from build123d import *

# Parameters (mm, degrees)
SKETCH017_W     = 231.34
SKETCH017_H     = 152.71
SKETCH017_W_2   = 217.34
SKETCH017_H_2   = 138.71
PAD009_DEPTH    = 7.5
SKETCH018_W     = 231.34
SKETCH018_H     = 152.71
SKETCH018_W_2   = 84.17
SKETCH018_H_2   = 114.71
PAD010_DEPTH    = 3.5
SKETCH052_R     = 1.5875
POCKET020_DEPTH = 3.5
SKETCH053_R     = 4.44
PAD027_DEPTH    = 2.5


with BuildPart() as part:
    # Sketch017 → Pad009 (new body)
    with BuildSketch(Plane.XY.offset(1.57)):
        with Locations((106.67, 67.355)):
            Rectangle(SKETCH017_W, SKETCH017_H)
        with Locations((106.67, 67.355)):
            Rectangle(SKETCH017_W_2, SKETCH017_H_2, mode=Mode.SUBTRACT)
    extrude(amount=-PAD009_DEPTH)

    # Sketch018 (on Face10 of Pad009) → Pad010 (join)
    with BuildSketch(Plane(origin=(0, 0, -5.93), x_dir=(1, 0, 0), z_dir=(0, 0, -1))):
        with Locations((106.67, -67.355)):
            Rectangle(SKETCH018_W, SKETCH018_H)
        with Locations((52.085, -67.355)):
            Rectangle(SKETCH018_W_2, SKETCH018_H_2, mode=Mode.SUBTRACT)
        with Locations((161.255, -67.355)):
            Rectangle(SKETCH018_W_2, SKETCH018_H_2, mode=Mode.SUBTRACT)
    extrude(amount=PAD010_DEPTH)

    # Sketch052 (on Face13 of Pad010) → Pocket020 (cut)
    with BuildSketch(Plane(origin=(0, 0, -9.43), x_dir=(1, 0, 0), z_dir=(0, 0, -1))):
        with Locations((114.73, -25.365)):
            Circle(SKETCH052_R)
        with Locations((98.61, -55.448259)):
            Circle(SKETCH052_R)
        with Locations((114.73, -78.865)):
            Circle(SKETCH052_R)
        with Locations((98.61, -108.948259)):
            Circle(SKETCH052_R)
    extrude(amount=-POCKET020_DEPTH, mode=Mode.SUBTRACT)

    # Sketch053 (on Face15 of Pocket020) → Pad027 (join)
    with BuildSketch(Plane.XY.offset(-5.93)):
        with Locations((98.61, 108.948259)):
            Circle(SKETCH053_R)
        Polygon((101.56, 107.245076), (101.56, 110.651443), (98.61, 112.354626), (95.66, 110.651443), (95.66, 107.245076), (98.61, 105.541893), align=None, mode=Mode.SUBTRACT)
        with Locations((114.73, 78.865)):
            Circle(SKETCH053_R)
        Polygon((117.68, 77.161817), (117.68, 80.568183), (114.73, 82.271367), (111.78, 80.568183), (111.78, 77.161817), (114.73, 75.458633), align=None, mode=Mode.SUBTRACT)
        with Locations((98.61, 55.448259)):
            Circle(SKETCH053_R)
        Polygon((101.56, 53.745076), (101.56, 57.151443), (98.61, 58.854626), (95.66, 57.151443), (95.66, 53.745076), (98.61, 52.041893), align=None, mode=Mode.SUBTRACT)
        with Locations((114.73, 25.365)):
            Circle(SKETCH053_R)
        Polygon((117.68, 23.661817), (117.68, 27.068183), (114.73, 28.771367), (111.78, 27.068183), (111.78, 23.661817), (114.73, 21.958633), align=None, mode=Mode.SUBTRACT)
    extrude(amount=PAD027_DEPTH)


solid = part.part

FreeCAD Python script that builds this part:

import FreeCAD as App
import Part
import Sketcher

V = App.Vector
Q = App.Units.Quantity

doc = App.newDocument("Part")
params = doc.addObject("Spreadsheet::Sheet", "Params")
for row, (alias, value) in enumerate([
    ("sketch1_width", "231.34 mm"),
    ("sketch1_height", "152.71 mm"),
    ("pad1_length", "7.5 mm"),
    ("sketch2_width", "231.34 mm"),
    ("sketch2_height", "152.71 mm"),
    ("pad2_length", "3.5 mm"),
    ("pocket1_length", "3.5 mm"),
    ("sketch4_diameter", "8.88 mm"),
    ("pad3_length", "2.5 mm"),
], start=1):
    params.set(f"A{row}", alias)
    params.set(f"B{row}", "=" + value)
    params.setAlias(f"B{row}", alias)

body = doc.addObject("PartDesign::Body", "Body")

# Sketch on XY plane
sketch1 = body.newObject("Sketcher::SketchObject", "Sketch")
sketch1.AttachmentSupport = (doc.getObject("XY_Plane"), [""])
sketch1.MapMode = "FlatFace"
sketch1.AttachmentOffset = App.Placement(V(0, 0, 1.57), App.Rotation())
sketch1.addGeometry([
    Part.LineSegment(V(-9, 144, 0), V(-9, -9, 0)),  # 0
    Part.LineSegment(V(-9, -9, 0), V(222, -9, 0)),  # 1
    Part.LineSegment(V(222, -9, 0), V(222, 144, 0)),  # 2
    Part.LineSegment(V(222, 144, 0), V(-9, 144, 0)),  # 3
    Part.LineSegment(V(215, -2, 0), V(-2, -2, 0)),  # 4
    Part.LineSegment(V(-2, -2, 0), V(-2, 137, 0)),  # 5
    Part.LineSegment(V(-2, 137, 0), V(215, 137, 0)),  # 6
    Part.LineSegment(V(215, 137, 0), V(215, -2, 0)),  # 7
], False)
sketch1.addConstraint([
    Sketcher.Constraint("Coincident", 0, 2, 1, 1),
    Sketcher.Constraint("Coincident", 1, 2, 2, 1),
    Sketcher.Constraint("Coincident", 2, 2, 3, 1),
    Sketcher.Constraint("Coincident", 3, 2, 0, 1),
    Sketcher.Constraint("Coincident", 4, 2, 5, 1),
    Sketcher.Constraint("Coincident", 5, 2, 6, 1),
    Sketcher.Constraint("Coincident", 6, 2, 7, 1),
    Sketcher.Constraint("Coincident", 7, 2, 4, 1),
    Sketcher.Constraint("Vertical", 0),
    Sketcher.Constraint("Horizontal", 1),
    Sketcher.Constraint("Vertical", 2),
    Sketcher.Constraint("Horizontal", 3),
    Sketcher.Constraint("Horizontal", 4),
    Sketcher.Constraint("Vertical", 5),
    Sketcher.Constraint("Horizontal", 6),
    Sketcher.Constraint("Vertical", 7),
    Sketcher.Constraint("DistanceX", 0, 2, -1, 1, 9.0),
    Sketcher.Constraint("DistanceY", 0, 2, -1, 1, 9.0),
    Sketcher.Constraint("DistanceX", 4, 2, -1, 1, 2.0),
    Sketcher.Constraint("DistanceY", 4, 2, -1, 1, 2.0),
    Sketcher.Constraint("DistanceY", 5, 2, 3, 2, 7.0),
    Sketcher.Constraint("DistanceX", 6, 2, 2, 2, 7.0),
    Sketcher.Constraint("DistanceX", 1, 1, 1, 2, 231.34),
    Sketcher.Constraint("DistanceY", 0, 2, 0, 1, 152.71),
])
sketch1.setExpression("Constraints[22]", "Params.sketch1_width")
sketch1.setExpression("Constraints[23]", "Params.sketch1_height")
pad1 = body.newObject("PartDesign::Pad", "Pad")
pad1.Profile = sketch1
pad1.setExpression("Length", "Params.pad1_length")
pad1.Reversed = True

# Sketch on XY plane
sketch2 = body.newObject("Sketcher::SketchObject", "Sketch001")
sketch2.AttachmentSupport = (doc.getObject("XY_Plane"), [""])
sketch2.MapMode = "FlatFace"
sketch2.AttachmentOffset = App.Placement(V(0, 0, -5.93), App.Rotation())
sketch2.addGeometry([
    Part.LineSegment(V(-9, -9, 0), V(-9, 144, 0)),  # 0
    Part.LineSegment(V(-9, 144, 0), V(222, 144, 0)),  # 1
    Part.LineSegment(V(222, 144, 0), V(222, -9, 0)),  # 2
    Part.LineSegment(V(222, -9, 0), V(-9, -9, 0)),  # 3
    Part.LineSegment(V(94, 125, 0), V(10, 125, 0)),  # 4
    Part.LineSegment(V(10, 125, 0), V(10, 10, 0)),  # 5
    Part.LineSegment(V(10, 10, 0), V(94, 10, 0)),  # 6
    Part.LineSegment(V(94, 10, 0), V(94, 125, 0)),  # 7
    Part.LineSegment(V(203, 125, 0), V(119, 125, 0)),  # 8
    Part.LineSegment(V(119, 125, 0), V(119, 10, 0)),  # 9
    Part.LineSegment(V(119, 10, 0), V(203, 10, 0)),  # 10
    Part.LineSegment(V(203, 10, 0), V(203, 125, 0)),  # 11
], False)
sketch2.addConstraint([
    Sketcher.Constraint("Coincident", 0, 2, 1, 1),
    Sketcher.Constraint("Coincident", 1, 2, 2, 1),
    Sketcher.Constraint("Coincident", 2, 2, 3, 1),
    Sketcher.Constraint("Coincident", 3, 2, 0, 1),
    Sketcher.Constraint("Coincident", 4, 2, 5, 1),
    Sketcher.Constraint("Coincident", 5, 2, 6, 1),
    Sketcher.Constraint("Coincident", 6, 2, 7, 1),
    Sketcher.Constraint("Coincident", 7, 2, 4, 1),
    Sketcher.Constraint("Coincident", 8, 2, 9, 1),
    Sketcher.Constraint("Coincident", 9, 2, 10, 1),
    Sketcher.Constraint("Coincident", 10, 2, 11, 1),
    Sketcher.Constraint("Coincident", 11, 2, 8, 1),
    Sketcher.Constraint("Vertical", 0),
    Sketcher.Constraint("Horizontal", 1),
    Sketcher.Constraint("Vertical", 2),
    Sketcher.Constraint("Horizontal", 3),
    Sketcher.Constraint("Horizontal", 4),
    Sketcher.Constraint("Vertical", 5),
    Sketcher.Constraint("Horizontal", 6),
    Sketcher.Constraint("Vertical", 7),
    Sketcher.Constraint("Horizontal", 8),
    Sketcher.Constraint("Vertical", 9),
    Sketcher.Constraint("Horizontal", 10),
    Sketcher.Constraint("Vertical", 11),
    Sketcher.Constraint("Horizontal", 7, 2, 8, 2),
    Sketcher.Constraint("Horizontal", 6, 2, 9, 2),
    Sketcher.Constraint("Equal", 6, 8),
    Sketcher.Constraint("DistanceX", 0, 2, -1, 1, 9.0),
    Sketcher.Constraint("DistanceY", 2, 2, -1, 1, 9.0),
    Sketcher.Constraint("DistanceX", -1, 1, 4, 2, 10.0),
    Sketcher.Constraint("DistanceY", -1, 1, 5, 2, 10.0),
    Sketcher.Constraint("DistanceY", 4, 2, 0, 2, 19.0),
    Sketcher.Constraint("DistanceX", 7, 2, 8, 2, 25.0),
    Sketcher.Constraint("DistanceX", 10, 2, 2, 2, 19.0),
    Sketcher.Constraint("DistanceX", 1, 1, 1, 2, 231.34),
    Sketcher.Constraint("DistanceY", 0, 1, 0, 2, 152.71),
])
sketch2.setExpression("Constraints[34]", "Params.sketch2_width")
sketch2.setExpression("Constraints[35]", "Params.sketch2_height")
pad2 = body.newObject("PartDesign::Pad", "Pad001")
pad2.Profile = sketch2
pad2.setExpression("Length", "Params.pad2_length")
pad2.Reversed = True

# Sketch on XY plane
sketch3 = body.newObject("Sketcher::SketchObject", "Sketch002")
sketch3.AttachmentSupport = (doc.getObject("XY_Plane"), [""])
sketch3.MapMode = "FlatFace"
sketch3.AttachmentOffset = App.Placement(V(0, 0, -9.43), App.Rotation())
sketch3.addGeometry([
    Part.Circle(V(114.7, 25.4, 0), V(0, 0, 1), 1.6),
    Part.Circle(V(98.6, 55.4, 0), V(0, 0, 1), 1.6),
    Part.Circle(V(114.7, 78.9, 0), V(0, 0, 1), 1.6),
    Part.Circle(V(98.6, 108.9, 0), V(0, 0, 1), 1.6),
], False)
sketch3.addConstraint([
    Sketcher.Constraint("Equal", 0, 1),
    Sketcher.Constraint("Equal", 1, 2),
    Sketcher.Constraint("Equal", 2, 3),
    Sketcher.Constraint("Vertical", 0, 3, 2, 3),
    Sketcher.Constraint("Vertical", 1, 3, 3, 3),
    Sketcher.Constraint("Diameter", 0, 3.175),
    Sketcher.Constraint("DistanceY", 0, 3, 2, 3, 53.5),
    Sketcher.Constraint("DistanceY", 1, 3, 3, 3, 53.5),
    Sketcher.Constraint("DistanceX", -1, 1, 0, 3, 114.73),
    Sketcher.Constraint("DistanceX", -1, 1, 1, 3, 98.61),
    Sketcher.Constraint("DistanceY", -1, 1, 0, 3, 25.365),
    Sketcher.Constraint("DistanceY", -1, 1, 1, 3, 55.448259),
])
pocket1 = body.newObject("PartDesign::Pocket", "Pocket")
pocket1.Profile = sketch3
pocket1.setExpression("Length", "Params.pocket1_length")
pocket1.Reversed = True

# Sketch on XY plane
sketch4 = body.newObject("Sketcher::SketchObject", "Sketch003")
sketch4.AttachmentSupport = (doc.getObject("XY_Plane"), [""])
sketch4.MapMode = "FlatFace"
sketch4.AttachmentOffset = App.Placement(V(0, 0, -5.93), App.Rotation())
sketch4.addGeometry([
    Part.Circle(V(98.6, 108.9, 0), V(0, 0, 1), 4.4),  # 0
    Part.LineSegment(V(101.6, 110.7, 0), V(101.6, 107.2, 0)),  # 1
    Part.LineSegment(V(101.6, 107.2, 0), V(98.6, 105.5, 0)),  # 2
    Part.LineSegment(V(98.6, 105.5, 0), V(95.7, 107.2, 0)),  # 3
    Part.LineSegment(V(95.7, 107.2, 0), V(95.7, 110.7, 0)),  # 4
    Part.LineSegment(V(95.7, 110.7, 0), V(98.6, 112.4, 0)),  # 5
    Part.LineSegment(V(98.6, 112.4, 0), V(101.6, 110.7, 0)),  # 6
    Part.Circle(V(114.7, 78.9, 0), V(0, 0, 1), 4.4),  # 7
    Part.LineSegment(V(117.7, 80.6, 0), V(117.7, 77.2, 0)),  # 8
    Part.LineSegment(V(117.7, 77.2, 0), V(114.7, 75.5, 0)),  # 9
    Part.LineSegment(V(114.7, 75.5, 0), V(111.8, 77.2, 0)),  # 10
    Part.LineSegment(V(111.8, 77.2, 0), V(111.8, 80.6, 0)),  # 11
    Part.LineSegment(V(111.8, 80.6, 0), V(114.7, 82.3, 0)),  # 12
    Part.LineSegment(V(114.7, 82.3, 0), V(117.7, 80.6, 0)),  # 13
    Part.Circle(V(98.6, 55.4, 0), V(0, 0, 1), 4.4),  # 14
    Part.LineSegment(V(101.6, 57.2, 0), V(101.6, 53.7, 0)),  # 15
    Part.LineSegment(V(101.6, 53.7, 0), V(98.6, 52, 0)),  # 16
    Part.LineSegment(V(98.6, 52, 0), V(95.7, 53.7, 0)),  # 17
    Part.LineSegment(V(95.7, 53.7, 0), V(95.7, 57.2, 0)),  # 18
    Part.LineSegment(V(95.7, 57.2, 0), V(98.6, 58.9, 0)),  # 19
    Part.LineSegment(V(98.6, 58.9, 0), V(101.6, 57.2, 0)),  # 20
    Part.Circle(V(114.7, 25.4, 0), V(0, 0, 1), 4.4),  # 21
    Part.LineSegment(V(117.7, 27.1, 0), V(117.7, 23.7, 0)),  # 22
    Part.LineSegment(V(117.7, 23.7, 0), V(114.7, 22, 0)),  # 23
    Part.LineSegment(V(114.7, 22, 0), V(111.8, 23.7, 0)),  # 24
    Part.LineSegment(V(111.8, 23.7, 0), V(111.8, 27.1, 0)),  # 25
    Part.LineSegment(V(111.8, 27.1, 0), V(114.7, 28.8, 0)),  # 26
    Part.LineSegment(V(114.7, 28.8, 0), V(117.7, 27.1, 0)),  # 27
], False)
sketch4.addConstraint([
    Sketcher.Constraint("Coincident", 1, 2, 2, 1),
    Sketcher.Constraint("Coincident", 2, 2, 3, 1),
    Sketcher.Constraint("Coincident", 3, 2, 4, 1),
    Sketcher.Constraint("Coincident", 4, 2, 5, 1),
    Sketcher.Constraint("Coincident", 5, 2, 6, 1),
    Sketcher.Constraint("Coincident", 6, 2, 1, 1),
    Sketcher.Constraint("Coincident", 8, 2, 9, 1),
    Sketcher.Constraint("Coincident", 9, 2, 10, 1),
    Sketcher.Constraint("Coincident", 10, 2, 11, 1),
    Sketcher.Constraint("Coincident", 11, 2, 12, 1),
    Sketcher.Constraint("Coincident", 12, 2, 13, 1),
    Sketcher.Constraint("Coincident", 13, 2, 8, 1),
    Sketcher.Constraint("Coincident", 15, 2, 16, 1),
    Sketcher.Constraint("Coincident", 16, 2, 17, 1),
    Sketcher.Constraint("Coincident", 17, 2, 18, 1),
    Sketcher.Constraint("Coincident", 18, 2, 19, 1),
    Sketcher.Constraint("Coincident", 19, 2, 20, 1),
    Sketcher.Constraint("Coincident", 20, 2, 15, 1),
    Sketcher.Constraint("Coincident", 22, 2, 23, 1),
    Sketcher.Constraint("Coincident", 23, 2, 24, 1),
    Sketcher.Constraint("Coincident", 24, 2, 25, 1),
    Sketcher.Constraint("Coincident", 25, 2, 26, 1),
    Sketcher.Constraint("Coincident", 26, 2, 27, 1),
    Sketcher.Constraint("Coincident", 27, 2, 22, 1),
    Sketcher.Constraint("Vertical", 1),
    Sketcher.Constraint("Vertical", 4),
    Sketcher.Constraint("Vertical", 8),
    Sketcher.Constraint("Vertical", 11),
    Sketcher.Constraint("Vertical", 15),
    Sketcher.Constraint("Vertical", 18),
    Sketcher.Constraint("Vertical", 22),
    Sketcher.Constraint("Vertical", 25),
    Sketcher.Constraint("Equal", 0, 7),
    Sketcher.Constraint("Equal", 7, 14),
    Sketcher.Constraint("Equal", 14, 21),
    Sketcher.Constraint("Parallel", 2, 5),
    Sketcher.Constraint("Parallel", 3, 6),
    Sketcher.Constraint("Parallel", 5, 9),
    Sketcher.Constraint("Parallel", 6, 10),
    Sketcher.Constraint("Parallel", 9, 12),
    Sketcher.Constraint("Parallel", 10, 13),
    Sketcher.Constraint("Parallel", 12, 16),
    Sketcher.Constraint("Parallel", 13, 17),
    Sketcher.Constraint("Parallel", 16, 19),
    Sketcher.Constraint("Parallel", 17, 20),
    Sketcher.Constraint("Parallel", 19, 23),
    Sketcher.Constraint("Parallel", 20, 24),
    Sketcher.Constraint("Parallel", 23, 26),
    Sketcher.Constraint("Parallel", 24, 27),
    Sketcher.Constraint("Horizontal", 1, 2, 3, 2),
    Sketcher.Constraint("Horizontal", 4, 2, 6, 2),
    Sketcher.Constraint("Horizontal", 8, 2, 10, 2),
    Sketcher.Constraint("Horizontal", 11, 2, 13, 2),
    Sketcher.Constraint("Horizontal", 15, 2, 17, 2),
    Sketcher.Constraint("Horizontal", 18, 2, 20, 2),
    Sketcher.Constraint("Horizontal", 22, 2, 24, 2),
    Sketcher.Constraint("Horizontal", 25, 2, 27, 2),
    Sketcher.Constraint("Vertical", 0, 3, 14, 3),
    Sketcher.Constraint("Vertical", 7, 3, 21, 3),
    Sketcher.Constraint("Vertical", 14, 3, 2, 2),
    Sketcher.Constraint("Vertical", 2, 2, 5, 2),
    Sketcher.Constraint("Vertical", 21, 3, 9, 2),
    Sketcher.Constraint("Vertical", 6, 2, 15, 2),
    Sketcher.Constraint("Vertical", 5, 2, 16, 2),
    Sketcher.Constraint("Vertical", 13, 2, 22, 2),
    Sketcher.Constraint("Vertical", 12, 2, 23, 2),
    Sketcher.Constraint("Equal", 4, 8),
    Sketcher.Constraint("Equal", 11, 15),
    Sketcher.Constraint("Equal", 18, 22),
    Sketcher.Constraint("Equal", 6, 9),
    Sketcher.Constraint("Diameter", 0, 8.88),
    Sketcher.Constraint("Angle", 2, Q("-150.000004 deg")),
    Sketcher.Constraint("DistanceY", 14, 3, 0, 3, 53.5),
    Sketcher.Constraint("DistanceY", 21, 3, 7, 3, 53.5),
    Sketcher.Constraint("DistanceX", 3, 2, 1, 2, 5.9),
    Sketcher.Constraint("DistanceX", -1, 1, 0, 3, 98.61),
    Sketcher.Constraint("DistanceX", -1, 1, 7, 3, 114.73),
    Sketcher.Constraint("DistanceY", -1, 1, 7, 3, 78.865),
    Sketcher.Constraint("DistanceY", 1, 2, 1, 1, 3.406367),
    Sketcher.Constraint("DistanceY", -1, 1, 0, 3, 108.948259),
    Sketcher.Constraint("DistanceY", 8, 2, 1, 2, 30.083259),
    Sketcher.Constraint("DistanceY", 8, 2, 0, 3, 31.786442),
    Sketcher.Constraint("DistanceY", 15, 2, 10, 2, 23.416741),
    Sketcher.Constraint("DistanceY", 22, 2, 15, 2, 30.083259),
])
sketch4.setExpression("Constraints[70]", "Params.sketch4_diameter")
pad3 = body.newObject("PartDesign::Pad", "Pad002")
pad3.Profile = sketch4
pad3.setExpression("Length", "Params.pad3_length")

doc.recompute()
